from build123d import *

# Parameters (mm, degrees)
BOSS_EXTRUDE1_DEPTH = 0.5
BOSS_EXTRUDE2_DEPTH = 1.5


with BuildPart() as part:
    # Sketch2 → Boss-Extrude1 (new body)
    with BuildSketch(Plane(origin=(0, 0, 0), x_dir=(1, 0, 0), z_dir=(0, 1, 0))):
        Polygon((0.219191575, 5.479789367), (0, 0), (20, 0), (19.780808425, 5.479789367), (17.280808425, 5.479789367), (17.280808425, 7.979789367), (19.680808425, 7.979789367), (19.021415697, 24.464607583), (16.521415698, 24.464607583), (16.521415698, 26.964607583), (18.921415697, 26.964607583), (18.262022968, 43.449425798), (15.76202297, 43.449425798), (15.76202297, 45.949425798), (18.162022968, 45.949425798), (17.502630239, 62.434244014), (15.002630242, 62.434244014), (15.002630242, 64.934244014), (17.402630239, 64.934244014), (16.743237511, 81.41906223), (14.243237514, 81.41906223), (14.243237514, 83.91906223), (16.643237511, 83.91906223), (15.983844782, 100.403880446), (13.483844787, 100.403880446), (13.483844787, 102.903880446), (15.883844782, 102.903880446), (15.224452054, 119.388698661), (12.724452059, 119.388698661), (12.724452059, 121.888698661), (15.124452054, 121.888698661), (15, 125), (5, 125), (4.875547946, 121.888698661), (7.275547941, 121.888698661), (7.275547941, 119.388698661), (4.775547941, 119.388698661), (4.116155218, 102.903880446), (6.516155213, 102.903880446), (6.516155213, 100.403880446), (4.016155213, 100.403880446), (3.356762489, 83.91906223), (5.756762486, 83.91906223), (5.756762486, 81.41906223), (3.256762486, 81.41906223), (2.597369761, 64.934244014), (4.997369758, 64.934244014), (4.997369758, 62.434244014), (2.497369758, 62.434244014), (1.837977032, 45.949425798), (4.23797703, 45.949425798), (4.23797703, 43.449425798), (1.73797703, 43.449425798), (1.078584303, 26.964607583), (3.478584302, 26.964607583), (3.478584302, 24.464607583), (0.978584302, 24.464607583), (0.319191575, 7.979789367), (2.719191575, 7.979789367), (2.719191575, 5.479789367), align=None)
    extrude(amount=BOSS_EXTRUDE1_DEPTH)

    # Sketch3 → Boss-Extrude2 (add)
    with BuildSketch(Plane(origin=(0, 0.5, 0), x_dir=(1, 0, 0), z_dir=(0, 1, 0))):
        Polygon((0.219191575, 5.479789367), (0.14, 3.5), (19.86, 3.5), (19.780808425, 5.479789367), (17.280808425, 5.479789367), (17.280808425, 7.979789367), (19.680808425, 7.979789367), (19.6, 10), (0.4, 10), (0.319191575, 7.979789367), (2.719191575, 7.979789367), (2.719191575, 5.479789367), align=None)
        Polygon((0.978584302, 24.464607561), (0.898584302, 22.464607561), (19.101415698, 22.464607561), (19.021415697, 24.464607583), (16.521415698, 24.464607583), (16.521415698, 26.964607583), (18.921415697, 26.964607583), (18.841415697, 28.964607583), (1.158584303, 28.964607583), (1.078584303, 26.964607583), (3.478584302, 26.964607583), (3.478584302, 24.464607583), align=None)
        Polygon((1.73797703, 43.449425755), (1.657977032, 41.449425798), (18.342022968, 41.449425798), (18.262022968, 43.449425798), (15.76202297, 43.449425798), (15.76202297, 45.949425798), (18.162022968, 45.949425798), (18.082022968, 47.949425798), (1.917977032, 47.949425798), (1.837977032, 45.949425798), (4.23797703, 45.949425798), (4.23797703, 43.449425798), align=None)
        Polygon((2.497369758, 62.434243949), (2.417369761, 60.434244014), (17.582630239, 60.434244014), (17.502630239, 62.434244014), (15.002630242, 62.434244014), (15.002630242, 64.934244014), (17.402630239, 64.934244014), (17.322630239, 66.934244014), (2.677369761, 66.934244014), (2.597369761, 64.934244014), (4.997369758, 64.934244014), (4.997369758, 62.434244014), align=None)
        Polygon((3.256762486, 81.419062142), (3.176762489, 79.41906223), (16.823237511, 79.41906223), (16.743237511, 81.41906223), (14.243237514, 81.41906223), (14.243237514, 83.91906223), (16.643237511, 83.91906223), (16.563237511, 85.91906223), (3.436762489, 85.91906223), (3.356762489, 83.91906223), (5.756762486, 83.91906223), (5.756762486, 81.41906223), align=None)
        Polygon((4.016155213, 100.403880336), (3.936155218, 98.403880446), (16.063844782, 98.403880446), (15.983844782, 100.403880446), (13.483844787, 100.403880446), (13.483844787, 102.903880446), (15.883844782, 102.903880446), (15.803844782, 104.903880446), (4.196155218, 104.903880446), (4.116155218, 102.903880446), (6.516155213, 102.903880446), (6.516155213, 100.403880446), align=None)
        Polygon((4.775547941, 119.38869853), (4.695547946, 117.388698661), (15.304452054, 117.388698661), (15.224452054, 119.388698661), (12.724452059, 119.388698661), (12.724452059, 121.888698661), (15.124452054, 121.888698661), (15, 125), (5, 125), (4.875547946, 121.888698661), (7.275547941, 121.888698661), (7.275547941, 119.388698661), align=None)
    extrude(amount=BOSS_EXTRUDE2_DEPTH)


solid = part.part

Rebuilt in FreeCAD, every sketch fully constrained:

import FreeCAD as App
import Part
import Sketcher

V = App.Vector


def add_polygon(sketch, points):
    """Adds a closed chain of lines whose ends are joined by coincident constraints."""
    first, n = sketch.GeometryCount, len(points)
    for a, b in zip(points, points[1:] + points[:1]):
        sketch.addGeometry(Part.LineSegment(App.Vector(*a, 0), App.Vector(*b, 0)), False)
    for i in range(n):
        sketch.addConstraint(Sketcher.Constraint("Coincident", first + i, 2, first + (i + 1) % n, 1))

doc = App.newDocument("Part")
body = doc.addObject("PartDesign::Body", "Body")

# Sketch on XZ plane
sketch1 = body.newObject("Sketcher::SketchObject", "Sketch")
sketch1.AttachmentSupport = (doc.getObject("XZ_Plane"), [""])
sketch1.MapMode = "FlatFace"
add_polygon(sketch1, [(0.2, -5.5), (0, 0), (20, 0), (19.8, -5.5), (17.3, -5.5), (17.3, -8), (19.7, -8), (19, -24.5), (16.5, -24.5), (16.5, -27), (18.9, -27), (18.3, -43.4), (15.8, -43.4), (15.8, -45.9), (18.2, -45.9), (17.5, -62.4), (15, -62.4), (15, -64.9), (17.4, -64.9), (16.7, -81.4), (14.2, -81.4), (14.2, -83.9), (16.6, -83.9), (16, -100.4), (13.5, -100.4), (13.5, -102.9), (15.9, -102.9), (15.2, -119.4), (12.7, -119.4), (12.7, -121.9), (15.1, -121.9), (15, -125), (5, -125), (4.9, -121.9), (7.3, -121.9), (7.3, -119.4), (4.8, -119.4), (4.1, -102.9), (6.5, -102.9), (6.5, -100.4), (4, -100.4), (3.4, -83.9), (5.8, -83.9), (5.8, -81.4), (3.3, -81.4), (2.6, -64.9), (5, -64.9), (5, -62.4), (2.5, -62.4), (1.8, -45.9), (4.2, -45.9), (4.2, -43.4), (1.7, -43.4), (1.1, -27), (3.5, -27), (3.5, -24.5), (1, -24.5), (0.3, -8), (2.7, -8), (2.7, -5.5)])  # lines 0-59
sketch1.addConstraint(Sketcher.Constraint("Horizontal", 1))
sketch1.addConstraint(Sketcher.Constraint("Horizontal", 3))
sketch1.addConstraint(Sketcher.Constraint("Vertical", 4))
sketch1.addConstraint(Sketcher.Constraint("Horizontal", 5))
sketch1.addConstraint(Sketcher.Constraint("Horizontal", 7))
sketch1.addConstraint(Sketcher.Constraint("Vertical", 8))
sketch1.addConstraint(Sketcher.Constraint("Horizontal", 9))
sketch1.addConstraint(Sketcher.Constraint("Horizontal", 11))
sketch1.addConstraint(Sketcher.Constraint("Vertical", 12))
sketch1.addConstraint(Sketcher.Constraint("Horizontal", 13))
sketch1.addConstraint(Sketcher.Constraint("Horizontal", 15))
sketch1.addConstraint(Sketcher.Constraint("Vertical", 16))
sketch1.addConstraint(Sketcher.Constraint("Horizontal", 17))
sketch1.addConstraint(Sketcher.Constraint("Horizontal", 19))
sketch1.addConstraint(Sketcher.Constraint("Vertical", 20))
sketch1.addConstraint(Sketcher.Constraint("Horizontal", 21))
sketch1.addConstraint(Sketcher.Constraint("Horizontal", 23))
sketch1.addConstraint(Sketcher.Constraint("Vertical", 24))
sketch1.addConstraint(Sketcher.Constraint("Horizontal", 25))
sketch1.addConstraint(Sketcher.Constraint("Horizontal", 27))
sketch1.addConstraint(Sketcher.Constraint("Vertical", 28))
sketch1.addConstraint(Sketcher.Constraint("Horizontal", 29))
sketch1.addConstraint(Sketcher.Constraint("Horizontal", 31))
sketch1.addConstraint(Sketcher.Constraint("Horizontal", 33))
sketch1.addConstraint(Sketcher.Constraint("Vertical", 34))
sketch1.addConstraint(Sketcher.Constraint("Horizontal", 35))
sketch1.addConstraint(Sketcher.Constraint("Horizontal", 37))
sketch1.addConstraint(Sketcher.Constraint("Vertical", 38))
sketch1.addConstraint(Sketcher.Constraint("Horizontal", 39))
sketch1.addConstraint(Sketcher.Constraint("Horizontal", 41))
sketch1.addConstraint(Sketcher.Constraint("Vertical", 42))
sketch1.addConstraint(Sketcher.Constraint("Horizontal", 43))
sketch1.addConstraint(Sketcher.Constraint("Horizontal", 45))
sketch1.addConstraint(Sketcher.Constraint("Vertical", 46))
sketch1.addConstraint(Sketcher.Constraint("Horizontal", 47))
sketch1.addConstraint(Sketcher.Constraint("Horizontal", 49))
sketch1.addConstraint(Sketcher.Constraint("Vertical", 50))
sketch1.addConstraint(Sketcher.Constraint("Horizontal", 51))
sketch1.addConstraint(Sketcher.Constraint("Horizontal", 53))
sketch1.addConstraint(Sketcher.Constraint("Vertical", 54))
sketch1.addConstraint(Sketcher.Constraint("Horizontal", 55))
sketch1.addConstraint(Sketcher.Constraint("Horizontal", 57))
sketch1.addConstraint(Sketcher.Constraint("Vertical", 58))
sketch1.addConstraint(Sketcher.Constraint("Horizontal", 59))
sketch1.addConstraint(Sketcher.Constraint("Coincident", 0, 2, -1, 1))
sketch1.addConstraint(Sketcher.Constraint("Parallel", 2, 6))
sketch1.addConstraint(Sketcher.Constraint("Parallel", 6, 10))
sketch1.addConstraint(Sketcher.Constraint("Parallel", 10, 14))
sketch1.addConstraint(Sketcher.Constraint("Parallel", 14, 18))
sketch1.addConstraint(Sketcher.Constraint("Parallel", 18, 22))
sketch1.addConstraint(Sketcher.Constraint("Parallel", 22, 26))
sketch1.addConstraint(Sketcher.Constraint("Parallel", 26, 30))
sketch1.addConstraint(Sketcher.Constraint("Parallel", 0, 32))
sketch1.addConstraint(Sketcher.Constraint("Parallel", 32, 36))
sketch1.addConstraint(Sketcher.Constraint("Parallel", 36, 40))
sketch1.addConstraint(Sketcher.Constraint("Parallel", 40, 44))
sketch1.addConstraint(Sketcher.Constraint("Parallel", 44, 48))
sketch1.addConstraint(Sketcher.Constraint("Parallel", 48, 52))
sketch1.addConstraint(Sketcher.Constraint("Parallel", 52, 56))
sketch1.addConstraint(Sketcher.Constraint("Horizontal", 29, 2, 32, 2))
sketch1.addConstraint(Sketcher.Constraint("Horizontal", 27, 2, 34, 2))
sketch1.addConstraint(Sketcher.Constraint("Horizontal", 25, 2, 36, 2))
sketch1.addConstraint(Sketcher.Constraint("Horizontal", 23, 2, 38, 2))
sketch1.addConstraint(Sketcher.Constraint("Horizontal", 21, 2, 40, 2))
sketch1.addConstraint(Sketcher.Constraint("Horizontal", 19, 2, 42, 2))
sketch1.addConstraint(Sketcher.Constraint("Horizontal", 17, 2, 44, 2))
sketch1.addConstraint(Sketcher.Constraint("Horizontal", 15, 2, 46, 2))
sketch1.addConstraint(Sketcher.Constraint("Horizontal", 13, 2, 48, 2))
sketch1.addConstraint(Sketcher.Constraint("Horizontal", 11, 2, 50, 2))
sketch1.addConstraint(Sketcher.Constraint("Horizontal", 9, 2, 52, 2))
sketch1.addConstraint(Sketcher.Constraint("Horizontal", 7, 2, 54, 2))
sketch1.addConstraint(Sketcher.Constraint("Horizontal", 5, 2, 56, 2))
sketch1.addConstraint(Sketcher.Constraint("Horizontal", 3, 2, 58, 2))
sketch1.addConstraint(Sketcher.Constraint("Equal", 3, 7))
sketch1.addConstraint(Sketcher.Constraint("Equal", 5, 9))
sketch1.addConstraint(Sketcher.Constraint("Equal", 7, 11))
sketch1.addConstraint(Sketcher.Constraint("Equal", 9, 13))
sketch1.addConstraint(Sketcher.Constraint("Equal", 11, 15))
sketch1.addConstraint(Sketcher.Constraint("Equal", 13, 17))
sketch1.addConstraint(Sketcher.Constraint("Equal", 15, 19))
sketch1.addConstraint(Sketcher.Constraint("Equal", 17, 21))
sketch1.addConstraint(Sketcher.Constraint("Equal", 19, 23))
sketch1.addConstraint(Sketcher.Constraint("Equal", 21, 25))
sketch1.addConstraint(Sketcher.Constraint("Equal", 23, 27))
sketch1.addConstraint(Sketcher.Constraint("Equal", 25, 29))
sketch1.addConstraint(Sketcher.Constraint("Equal", 29, 33))
sketch1.addConstraint(Sketcher.Constraint("Equal", 27, 35))
sketch1.addConstraint(Sketcher.Constraint("Equal", 33, 37))
sketch1.addConstraint(Sketcher.Constraint("Equal", 35, 39))
sketch1.addConstraint(Sketcher.Constraint("Equal", 37, 41))
sketch1.addConstraint(Sketcher.Constraint("Equal", 39, 43))
sketch1.addConstraint(Sketcher.Constraint("Equal", 41, 45))
sketch1.addConstraint(Sketcher.Constraint("Equal", 43, 47))
sketch1.addConstraint(Sketcher.Constraint("Equal", 45, 49))
sketch1.addConstraint(Sketcher.Constraint("Equal", 47, 51))
sketch1.addConstraint(Sketcher.Constraint("Equal", 49, 53))
sketch1.addConstraint(Sketcher.Constraint("Equal", 51, 55))
sketch1.addConstraint(Sketcher.Constraint("Equal", 53, 57))
sketch1.addConstraint(Sketcher.Constraint("Equal", 55, 59))
sketch1.addConstraint(Sketcher.Constraint("Equal", 59, 4))
sketch1.addConstraint(Sketcher.Constraint("Equal", 4, 8))
sketch1.addConstraint(Sketcher.Constraint("Equal", 8, 12))
sketch1.addConstraint(Sketcher.Constraint("Equal", 12, 16))
sketch1.addConstraint(Sketcher.Constraint("Equal", 16, 20))
sketch1.addConstraint(Sketcher.Constraint("Equal", 20, 24))
sketch1.addConstraint(Sketcher.Constraint("Equal", 24, 28))
sketch1.addConstraint(Sketcher.Constraint("Equal", 6, 10))
sketch1.addConstraint(Sketcher.Constraint("Equal", 10, 14))
sketch1.addConstraint(Sketcher.Constraint("Equal", 14, 18))
sketch1.addConstraint(Sketcher.Constraint("Equal", 18, 22))
sketch1.addConstraint(Sketcher.Constraint("Equal", 22, 26))
sketch1.addConstraint(Sketcher.Constraint("DistanceX", 1, 1, 1, 2, 20.0))
sketch1.addConstraint(Sketcher.Constraint("DistanceX", 31, 2, 31, 1, 10.0))
sketch1.addConstraint(Sketcher.Constraint("DistanceX", 3, 2, 3, 1, 2.5))
sketch1.addConstraint(Sketcher.Constraint("DistanceX", 5, 1, 5, 2, 2.4))
sketch1.addConstraint(Sketcher.Constraint("DistanceX", -1, 1, 30, 2, 15.0))
sketch1.addConstraint(Sketcher.Constraint("DistanceY", 30, 2, -1, 1, 125.0))
sketch1.addConstraint(Sketcher.Constraint("Distance", 6, 16.498001))
sketch1.addConstraint(Sketcher.Constraint("DistanceY", 26, 2, -1, 1, 119.388699))
pad1 = body.newObject("PartDesign::Pad", "Pad")
pad1.Profile = sketch1
pad1.Length = 0.5
pad1.Reversed = True

# Sketch on XZ plane
sketch2 = body.newObject("Sketcher::SketchObject", "Sketch001")
sketch2.AttachmentSupport = (doc.getObject("XZ_Plane"), [""])
sketch2.MapMode = "FlatFace"
sketch2.AttachmentOffset = App.Placement(V(0, 0, -0.5), App.Rotation())
add_polygon(sketch2, [(0.2, -5.5), (0.1, -3.5), (19.9, -3.5), (19.8, -5.5), (17.3, -5.5), (17.3, -8), (19.7, -8), (19.6, -10), (0.4, -10), (0.3, -8), (2.7, -8), (2.7, -5.5)])  # lines 0-11
add_polygon(sketch2, [(1, -24.5), (0.9, -22.5), (19.1, -22.5), (19, -24.5), (16.5, -24.5), (16.5, -27), (18.9, -27), (18.8, -29), (1.2, -29), (1.1, -27), (3.5, -27), (3.5, -24.5)])  # lines 12-23
add_polygon(sketch2, [(1.7, -43.4), (1.7, -41.4), (18.3, -41.4), (18.3, -43.4), (15.8, -43.4), (15.8, -45.9), (18.2, -45.9), (18.1, -47.9), (1.9, -47.9), (1.8, -45.9), (4.2, -45.9), (4.2, -43.4)])  # lines 24-35
add_polygon(sketch2, [(2.5, -62.4), (2.4, -60.4), (17.6, -60.4), (17.5, -62.4), (15, -62.4), (15, -64.9), (17.4, -64.9), (17.3, -66.9), (2.7, -66.9), (2.6, -64.9), (5, -64.9), (5, -62.4)])  # lines 36-47
add_polygon(sketch2, [(3.3, -81.4), (3.2, -79.4), (16.8, -79.4), (16.7, -81.4), (14.2, -81.4), (14.2, -83.9), (16.6, -83.9), (16.6, -85.9), (3.4, -85.9), (3.4, -83.9), (5.8, -83.9), (5.8, -81.4)])  # lines 48-59
add_polygon(sketch2, [(4, -100.4), (3.9, -98.4), (16.1, -98.4), (16, -100.4), (13.5, -100.4), (13.5, -102.9), (15.9, -102.9), (15.8, -104.9), (4.2, -104.9), (4.1, -102.9), (6.5, -102.9), (6.5, -100.4)])  # lines 60-71
add_polygon(sketch2, [(4.8, -119.4), (4.7, -117.4), (15.3, -117.4), (15.2, -119.4), (12.7, -119.4), (12.7, -121.9), (15.1, -121.9), (15, -125), (5, -125), (4.9, -121.9), (7.3, -121.9), (7.3, -119.4)])  # lines 72-83
sketch2.addConstraint(Sketcher.Constraint("Horizontal", 1))
sketch2.addConstraint(Sketcher.Constraint("Horizontal", 3))
sketch2.addConstraint(Sketcher.Constraint("Vertical", 4))
sketch2.addConstraint(Sketcher.Constraint("Horizontal", 5))
sketch2.addConstraint(Sketcher.Constraint("Horizontal", 7))
sketch2.addConstraint(Sketcher.Constraint("Horizontal", 9))
sketch2.addConstraint(Sketcher.Constraint("Vertical", 10))
sketch2.addConstraint(Sketcher.Constraint("Horizontal", 11))
sketch2.addConstraint(Sketcher.Constraint("Horizontal", 13))
sketch2.addConstraint(Sketcher.Constraint("Horizontal", 15))
sketch2.addConstraint(Sketcher.Constraint("Vertical", 16))
sketch2.addConstraint(Sketcher.Constraint("Horizontal", 17))
sketch2.addConstraint(Sketcher.Constraint("Horizontal", 19))
sketch2.addConstraint(Sketcher.Constraint("Horizontal", 21))
sketch2.addConstraint(Sketcher.Constraint("Vertical", 22))
sketch2.addConstraint(Sketcher.Constraint("Horizontal", 23))
sketch2.addConstraint(Sketcher.Constraint("Horizontal", 25))
sketch2.addConstraint(Sketcher.Constraint("Horizontal", 27))
sketch2.addConstraint(Sketcher.Constraint("Vertical", 28))
sketch2.addConstraint(Sketcher.Constraint("Horizontal", 29))
sketch2.addConstraint(Sketcher.Constraint("Horizontal", 31))
sketch2.addConstraint(Sketcher.Constraint("Horizontal", 33))
sketch2.addConstraint(Sketcher.Constraint("Vertical", 34))
sketch2.addConstraint(Sketcher.Constraint("Horizontal", 35))
sketch2.addConstraint(Sketcher.Constraint("Horizontal", 37))
sketch2.addConstraint(Sketcher.Constraint("Horizontal", 39))
sketch2.addConstraint(Sketcher.Constraint("Vertical", 40))
sketch2.addConstraint(Sketcher.Constraint("Horizontal", 41))
sketch2.addConstraint(Sketcher.Constraint("Horizontal", 43))
sketch2.addConstraint(Sketcher.Constraint("Horizontal", 45))
sketch2.addConstraint(Sketcher.Constraint("Vertical", 46))
sketch2.addConstraint(Sketcher.Constraint("Horizontal", 47))
sketch2.addConstraint(Sketcher.Constraint("Horizontal", 49))
sketch2.addConstraint(Sketcher.Constraint("Horizontal", 51))
sketch2.addConstraint(Sketcher.Constraint("Vertical", 52))
sketch2.addConstraint(Sketcher.Constraint("Horizontal", 53))
sketch2.addConstraint(Sketcher.Constraint("Horizontal", 55))
sketch2.addConstraint(Sketcher.Constraint("Horizontal", 57))
sketch2.addConstraint(Sketcher.Constraint("Vertical", 58))
sketch2.addConstraint(Sketcher.Constraint("Horizontal", 59))
sketch2.addConstraint(Sketcher.Constraint("Horizontal", 61))
sketch2.addConstraint(Sketcher.Constraint("Horizontal", 63))
sketch2.addConstraint(Sketcher.Constraint("Vertical", 64))
sketch2.addConstraint(Sketcher.Constraint("Horizontal", 65))
sketch2.addConstraint(Sketcher.Constraint("Horizontal", 67))
sketch2.addConstraint(Sketcher.Constraint("Horizontal", 69))
sketch2.addConstraint(Sketcher.Constraint("Vertical", 70))
sketch2.addConstraint(Sketcher.Constraint("Horizontal", 71))
sketch2.addConstraint(Sketcher.Constraint("Horizontal", 73))
sketch2.addConstraint(Sketcher.Constraint("Horizontal", 75))
sketch2.addConstraint(Sketcher.Constraint("Vertical", 76))
sketch2.addConstraint(Sketcher.Constraint("Horizontal", 77))
sketch2.addConstraint(Sketcher.Constraint("Horizontal", 79))
sketch2.addConstraint(Sketcher.Constraint("Horizontal", 81))
sketch2.addConstraint(Sketcher.Constraint("Vertical", 82))
sketch2.addConstraint(Sketcher.Constraint("Horizontal", 83))
sketch2.addConstraint(Sketcher.Constraint("Parallel", 2, 6))
sketch2.addConstraint(Sketcher.Constraint("Parallel", 0, 8))
sketch2.addConstraint(Sketcher.Constraint("Parallel", 8, 12))
sketch2.addConstraint(Sketcher.Constraint("Parallel", 6, 14))
sketch2.addConstraint(Sketcher.Constraint("Parallel", 14, 18))
sketch2.addConstraint(Sketcher.Constraint("Parallel", 12, 20))
sketch2.addConstraint(Sketcher.Constraint("Parallel", 20, 24))
sketch2.addConstraint(Sketcher.Constraint("Parallel", 18, 26))
sketch2.addConstraint(Sketcher.Constraint("Parallel", 26, 30))
sketch2.addConstraint(Sketcher.Constraint("Parallel", 24, 32))
sketch2.addConstraint(Sketcher.Constraint("Parallel", 32, 36))
sketch2.addConstraint(Sketcher.Constraint("Parallel", 30, 38))
sketch2.addConstraint(Sketcher.Constraint("Parallel", 38, 42))
sketch2.addConstraint(Sketcher.Constraint("Parallel", 36, 44))
sketch2.addConstraint(Sketcher.Constraint("Parallel", 44, 48))
sketch2.addConstraint(Sketcher.Constraint("Parallel", 42, 50))
sketch2.addConstraint(Sketcher.Constraint("Parallel", 50, 54))
sketch2.addConstraint(Sketcher.Constraint("Parallel", 48, 56))
sketch2.addConstraint(Sketcher.Constraint("Parallel", 56, 60))
sketch2.addConstraint(Sketcher.Constraint("Parallel", 54, 62))
sketch2.addConstraint(Sketcher.Constraint("Parallel", 62, 66))
sketch2.addConstraint(Sketcher.Constraint("Parallel", 60, 68))
sketch2.addConstraint(Sketcher.Constraint("Parallel", 68, 72))
sketch2.addConstraint(Sketcher.Constraint("Parallel", 66, 74))
sketch2.addConstraint(Sketcher.Constraint("Parallel", 74, 78))
sketch2.addConstraint(Sketcher.Constraint("Parallel", 72, 80))
sketch2.addConstraint(Sketcher.Constraint("Horizontal", 5, 2, 8, 2))
sketch2.addConstraint(Sketcher.Constraint("Horizontal", 3, 2, 10, 2))
sketch2.addConstraint(Sketcher.Constraint("Horizontal", 17, 2, 20, 2))
sketch2.addConstraint(Sketcher.Constraint("Horizontal", 15, 2, 22, 2))
sketch2.addConstraint(Sketcher.Constraint("Horizontal", 29, 2, 32, 2))
sketch2.addConstraint(Sketcher.Constraint("Horizontal", 27, 2, 34, 2))
sketch2.addConstraint(Sketcher.Constraint("Horizontal", 41, 2, 44, 2))
sketch2.addConstraint(Sketcher.Constraint("Horizontal", 39, 2, 46, 2))
sketch2.addConstraint(Sketcher.Constraint("Horizontal", 53, 2, 56, 2))
sketch2.addConstraint(Sketcher.Constraint("Horizontal", 51, 2, 58, 2))
sketch2.addConstraint(Sketcher.Constraint("Horizontal", 65, 2, 68, 2))
sketch2.addConstraint(Sketcher.Constraint("Horizontal", 63, 2, 70, 2))
sketch2.addConstraint(Sketcher.Constraint("Horizontal", 77, 2, 80, 2))
sketch2.addConstraint(Sketcher.Constraint("Horizontal", 75, 2, 82, 2))
sketch2.addConstraint(Sketcher.Constraint("Equal", 5, 9))
sketch2.addConstraint(Sketcher.Constraint("Equal", 3, 11))
sketch2.addConstraint(Sketcher.Constraint("Equal", 11, 15))
sketch2.addConstraint(Sketcher.Constraint("Equal", 9, 17))
sketch2.addConstraint(Sketcher.Constraint("Equal", 17, 21))
sketch2.addConstraint(Sketcher.Constraint("Equal", 15, 23))
sketch2.addConstraint(Sketcher.Constraint("Equal", 23, 27))
sketch2.addConstraint(Sketcher.Constraint("Equal", 21, 29))
sketch2.addConstraint(Sketcher.Constraint("Equal", 29, 33))
sketch2.addConstraint(Sketcher.Constraint("Equal", 27, 35))
sketch2.addConstraint(Sketcher.Constraint("Equal", 35, 39))
sketch2.addConstraint(Sketcher.Constraint("Equal", 33, 41))
sketch2.addConstraint(Sketcher.Constraint("Equal", 41, 45))
sketch2.addConstraint(Sketcher.Constraint("Equal", 39, 47))
sketch2.addConstraint(Sketcher.Constraint("Equal", 47, 51))
sketch2.addConstraint(Sketcher.Constraint("Equal", 45, 53))
sketch2.addConstraint(Sketcher.Constraint("Equal", 53, 57))
sketch2.addConstraint(Sketcher.Constraint("Equal", 51, 59))
sketch2.addConstraint(Sketcher.Constraint("Equal", 59, 63))
sketch2.addConstraint(Sketcher.Constraint("Equal", 57, 65))
sketch2.addConstraint(Sketcher.Constraint("Equal", 65, 69))
sketch2.addConstraint(Sketcher.Constraint("Equal", 63, 71))
sketch2.addConstraint(Sketcher.Constraint("Equal", 71, 75))
sketch2.addConstraint(Sketcher.Constraint("Equal", 69, 77))
sketch2.addConstraint(Sketcher.Constraint("Equal", 77, 81))
sketch2.addConstraint(Sketcher.Constraint("Equal", 75, 83))
sketch2.addConstraint(Sketcher.Constraint("Equal", 83, 4))
sketch2.addConstraint(Sketcher.Constraint("Equal", 10, 16))
sketch2.addConstraint(Sketcher.Constraint("Equal", 22, 28))
sketch2.addConstraint(Sketcher.Constraint("Equal", 34, 40))
sketch2.addConstraint(Sketcher.Constraint("Equal", 46, 52))
sketch2.addConstraint(Sketcher.Constraint("Equal", 58, 64))
sketch2.addConstraint(Sketcher.Constraint("Equal", 70, 76))
sketch2.addConstraint(Sketcher.Constraint("Equal", 0, 2))
sketch2.addConstraint(Sketcher.Constraint("Equal", 14, 18))
sketch2.addConstraint(Sketcher.Constraint("Equal", 20, 24))
sketch2.addConstraint(Sketcher.Constraint("Equal", 26, 30))
sketch2.addConstraint(Sketcher.Constraint("Equal", 32, 36))
sketch2.addConstraint(Sketcher.Constraint("Equal", 38, 42))
sketch2.addConstraint(Sketcher.Constraint("Equal", 44, 48))
sketch2.addConstraint(Sketcher.Constraint("Equal", 50, 54))
sketch2.addConstraint(Sketcher.Constraint("Equal", 56, 60))
sketch2.addConstraint(Sketcher.Constraint("Equal", 62, 66))
sketch2.addConstraint(Sketcher.Constraint("Equal", 68, 72))
sketch2.addConstraint(Sketcher.Constraint("DistanceX", 79, 2, 79, 1, 10.0))
sketch2.addConstraint(Sketcher.Constraint("DistanceX", 3, 2, 3, 1, 2.5))
sketch2.addConstraint(Sketcher.Constraint("DistanceX", 5, 1, 5, 2, 2.4))
sketch2.addConstraint(Sketcher.Constraint("DistanceX", 7, 2, 7, 1, 19.2))
sketch2.addConstraint(Sketcher.Constraint("DistanceY", 6, 2, -1, 1, 10.0))
sketch2.addConstraint(Sketcher.Constraint("DistanceX", -1, 1, 78, 2, 15.0))
sketch2.addConstraint(Sketcher.Constraint("DistanceY", 78, 2, -1, 1, 125.0))
sketch2.addConstraint(Sketcher.Constraint("DistanceX", 1, 1, 1, 2, 19.72))
sketch2.addConstraint(Sketcher.Constraint("DistanceY", 0, 2, -1, 1, 3.5))
sketch2.addConstraint(Sketcher.Constraint("DistanceX", -1, 1, 6, 2, 19.6))
sketch2.addConstraint(Sketcher.Constraint("Distance", 12, 2.001599))
sketch2.addConstraint(Sketcher.Constraint("DistanceX", 13, 1, 13, 2, 18.202831))
sketch2.addConstraint(Sketcher.Constraint("DistanceX", 37, 1, 37, 2, 15.16526))
sketch2.addConstraint(Sketcher.Constraint("DistanceX", 61, 1, 61, 2, 12.12769))
sketch2.addConstraint(Sketcher.Constraint("DistanceY", 72, 2, -1, 1, 117.388699))
sketch2.addConstraint(Sketcher.Constraint("DistanceX", 25, 1, 25, 2, 16.684046))
sketch2.addConstraint(Sketcher.Constraint("DistanceX", 49, 1, 49, 2, 13.646475))
sketch2.addConstraint(Sketcher.Constraint("DistanceX", -1, 1, 2, 2, 19.780808))
sketch2.addConstraint(Sketcher.Constraint("DistanceX", -1, 1, 36, 2, 2.41737))
sketch2.addConstraint(Sketcher.Constraint("DistanceY", 60, 2, -1, 1, 98.40388))
sketch2.addConstraint(Sketcher.Constraint("DistanceX", -1, 1, 12, 2, 0.898584))
sketch2.addConstraint(Sketcher.Constraint("DistanceY", 12, 2, -1, 1, 22.464608))
sketch2.addConstraint(Sketcher.Constraint("DistanceX", -1, 1, 24, 2, 1.657977))
sketch2.addConstraint(Sketcher.Constraint("DistanceY", 24, 2, -1, 1, 41.449426))
sketch2.addConstraint(Sketcher.Constraint("DistanceY", 36, 2, -1, 1, 60.434244))
sketch2.addConstraint(Sketcher.Constraint("DistanceX", -1, 1, 48, 2, 3.176762))
sketch2.addConstraint(Sketcher.Constraint("DistanceY", 48, 2, -1, 1, 79.419062))
sketch2.addConstraint(Sketcher.Constraint("DistanceX", -1, 1, 60, 2, 3.936155))
pad2 = body.newObject("PartDesign::Pad", "Pad001")
pad2.Profile = sketch2
pad2.Length = 1.5
pad2.Reversed = True

doc.recompute()
